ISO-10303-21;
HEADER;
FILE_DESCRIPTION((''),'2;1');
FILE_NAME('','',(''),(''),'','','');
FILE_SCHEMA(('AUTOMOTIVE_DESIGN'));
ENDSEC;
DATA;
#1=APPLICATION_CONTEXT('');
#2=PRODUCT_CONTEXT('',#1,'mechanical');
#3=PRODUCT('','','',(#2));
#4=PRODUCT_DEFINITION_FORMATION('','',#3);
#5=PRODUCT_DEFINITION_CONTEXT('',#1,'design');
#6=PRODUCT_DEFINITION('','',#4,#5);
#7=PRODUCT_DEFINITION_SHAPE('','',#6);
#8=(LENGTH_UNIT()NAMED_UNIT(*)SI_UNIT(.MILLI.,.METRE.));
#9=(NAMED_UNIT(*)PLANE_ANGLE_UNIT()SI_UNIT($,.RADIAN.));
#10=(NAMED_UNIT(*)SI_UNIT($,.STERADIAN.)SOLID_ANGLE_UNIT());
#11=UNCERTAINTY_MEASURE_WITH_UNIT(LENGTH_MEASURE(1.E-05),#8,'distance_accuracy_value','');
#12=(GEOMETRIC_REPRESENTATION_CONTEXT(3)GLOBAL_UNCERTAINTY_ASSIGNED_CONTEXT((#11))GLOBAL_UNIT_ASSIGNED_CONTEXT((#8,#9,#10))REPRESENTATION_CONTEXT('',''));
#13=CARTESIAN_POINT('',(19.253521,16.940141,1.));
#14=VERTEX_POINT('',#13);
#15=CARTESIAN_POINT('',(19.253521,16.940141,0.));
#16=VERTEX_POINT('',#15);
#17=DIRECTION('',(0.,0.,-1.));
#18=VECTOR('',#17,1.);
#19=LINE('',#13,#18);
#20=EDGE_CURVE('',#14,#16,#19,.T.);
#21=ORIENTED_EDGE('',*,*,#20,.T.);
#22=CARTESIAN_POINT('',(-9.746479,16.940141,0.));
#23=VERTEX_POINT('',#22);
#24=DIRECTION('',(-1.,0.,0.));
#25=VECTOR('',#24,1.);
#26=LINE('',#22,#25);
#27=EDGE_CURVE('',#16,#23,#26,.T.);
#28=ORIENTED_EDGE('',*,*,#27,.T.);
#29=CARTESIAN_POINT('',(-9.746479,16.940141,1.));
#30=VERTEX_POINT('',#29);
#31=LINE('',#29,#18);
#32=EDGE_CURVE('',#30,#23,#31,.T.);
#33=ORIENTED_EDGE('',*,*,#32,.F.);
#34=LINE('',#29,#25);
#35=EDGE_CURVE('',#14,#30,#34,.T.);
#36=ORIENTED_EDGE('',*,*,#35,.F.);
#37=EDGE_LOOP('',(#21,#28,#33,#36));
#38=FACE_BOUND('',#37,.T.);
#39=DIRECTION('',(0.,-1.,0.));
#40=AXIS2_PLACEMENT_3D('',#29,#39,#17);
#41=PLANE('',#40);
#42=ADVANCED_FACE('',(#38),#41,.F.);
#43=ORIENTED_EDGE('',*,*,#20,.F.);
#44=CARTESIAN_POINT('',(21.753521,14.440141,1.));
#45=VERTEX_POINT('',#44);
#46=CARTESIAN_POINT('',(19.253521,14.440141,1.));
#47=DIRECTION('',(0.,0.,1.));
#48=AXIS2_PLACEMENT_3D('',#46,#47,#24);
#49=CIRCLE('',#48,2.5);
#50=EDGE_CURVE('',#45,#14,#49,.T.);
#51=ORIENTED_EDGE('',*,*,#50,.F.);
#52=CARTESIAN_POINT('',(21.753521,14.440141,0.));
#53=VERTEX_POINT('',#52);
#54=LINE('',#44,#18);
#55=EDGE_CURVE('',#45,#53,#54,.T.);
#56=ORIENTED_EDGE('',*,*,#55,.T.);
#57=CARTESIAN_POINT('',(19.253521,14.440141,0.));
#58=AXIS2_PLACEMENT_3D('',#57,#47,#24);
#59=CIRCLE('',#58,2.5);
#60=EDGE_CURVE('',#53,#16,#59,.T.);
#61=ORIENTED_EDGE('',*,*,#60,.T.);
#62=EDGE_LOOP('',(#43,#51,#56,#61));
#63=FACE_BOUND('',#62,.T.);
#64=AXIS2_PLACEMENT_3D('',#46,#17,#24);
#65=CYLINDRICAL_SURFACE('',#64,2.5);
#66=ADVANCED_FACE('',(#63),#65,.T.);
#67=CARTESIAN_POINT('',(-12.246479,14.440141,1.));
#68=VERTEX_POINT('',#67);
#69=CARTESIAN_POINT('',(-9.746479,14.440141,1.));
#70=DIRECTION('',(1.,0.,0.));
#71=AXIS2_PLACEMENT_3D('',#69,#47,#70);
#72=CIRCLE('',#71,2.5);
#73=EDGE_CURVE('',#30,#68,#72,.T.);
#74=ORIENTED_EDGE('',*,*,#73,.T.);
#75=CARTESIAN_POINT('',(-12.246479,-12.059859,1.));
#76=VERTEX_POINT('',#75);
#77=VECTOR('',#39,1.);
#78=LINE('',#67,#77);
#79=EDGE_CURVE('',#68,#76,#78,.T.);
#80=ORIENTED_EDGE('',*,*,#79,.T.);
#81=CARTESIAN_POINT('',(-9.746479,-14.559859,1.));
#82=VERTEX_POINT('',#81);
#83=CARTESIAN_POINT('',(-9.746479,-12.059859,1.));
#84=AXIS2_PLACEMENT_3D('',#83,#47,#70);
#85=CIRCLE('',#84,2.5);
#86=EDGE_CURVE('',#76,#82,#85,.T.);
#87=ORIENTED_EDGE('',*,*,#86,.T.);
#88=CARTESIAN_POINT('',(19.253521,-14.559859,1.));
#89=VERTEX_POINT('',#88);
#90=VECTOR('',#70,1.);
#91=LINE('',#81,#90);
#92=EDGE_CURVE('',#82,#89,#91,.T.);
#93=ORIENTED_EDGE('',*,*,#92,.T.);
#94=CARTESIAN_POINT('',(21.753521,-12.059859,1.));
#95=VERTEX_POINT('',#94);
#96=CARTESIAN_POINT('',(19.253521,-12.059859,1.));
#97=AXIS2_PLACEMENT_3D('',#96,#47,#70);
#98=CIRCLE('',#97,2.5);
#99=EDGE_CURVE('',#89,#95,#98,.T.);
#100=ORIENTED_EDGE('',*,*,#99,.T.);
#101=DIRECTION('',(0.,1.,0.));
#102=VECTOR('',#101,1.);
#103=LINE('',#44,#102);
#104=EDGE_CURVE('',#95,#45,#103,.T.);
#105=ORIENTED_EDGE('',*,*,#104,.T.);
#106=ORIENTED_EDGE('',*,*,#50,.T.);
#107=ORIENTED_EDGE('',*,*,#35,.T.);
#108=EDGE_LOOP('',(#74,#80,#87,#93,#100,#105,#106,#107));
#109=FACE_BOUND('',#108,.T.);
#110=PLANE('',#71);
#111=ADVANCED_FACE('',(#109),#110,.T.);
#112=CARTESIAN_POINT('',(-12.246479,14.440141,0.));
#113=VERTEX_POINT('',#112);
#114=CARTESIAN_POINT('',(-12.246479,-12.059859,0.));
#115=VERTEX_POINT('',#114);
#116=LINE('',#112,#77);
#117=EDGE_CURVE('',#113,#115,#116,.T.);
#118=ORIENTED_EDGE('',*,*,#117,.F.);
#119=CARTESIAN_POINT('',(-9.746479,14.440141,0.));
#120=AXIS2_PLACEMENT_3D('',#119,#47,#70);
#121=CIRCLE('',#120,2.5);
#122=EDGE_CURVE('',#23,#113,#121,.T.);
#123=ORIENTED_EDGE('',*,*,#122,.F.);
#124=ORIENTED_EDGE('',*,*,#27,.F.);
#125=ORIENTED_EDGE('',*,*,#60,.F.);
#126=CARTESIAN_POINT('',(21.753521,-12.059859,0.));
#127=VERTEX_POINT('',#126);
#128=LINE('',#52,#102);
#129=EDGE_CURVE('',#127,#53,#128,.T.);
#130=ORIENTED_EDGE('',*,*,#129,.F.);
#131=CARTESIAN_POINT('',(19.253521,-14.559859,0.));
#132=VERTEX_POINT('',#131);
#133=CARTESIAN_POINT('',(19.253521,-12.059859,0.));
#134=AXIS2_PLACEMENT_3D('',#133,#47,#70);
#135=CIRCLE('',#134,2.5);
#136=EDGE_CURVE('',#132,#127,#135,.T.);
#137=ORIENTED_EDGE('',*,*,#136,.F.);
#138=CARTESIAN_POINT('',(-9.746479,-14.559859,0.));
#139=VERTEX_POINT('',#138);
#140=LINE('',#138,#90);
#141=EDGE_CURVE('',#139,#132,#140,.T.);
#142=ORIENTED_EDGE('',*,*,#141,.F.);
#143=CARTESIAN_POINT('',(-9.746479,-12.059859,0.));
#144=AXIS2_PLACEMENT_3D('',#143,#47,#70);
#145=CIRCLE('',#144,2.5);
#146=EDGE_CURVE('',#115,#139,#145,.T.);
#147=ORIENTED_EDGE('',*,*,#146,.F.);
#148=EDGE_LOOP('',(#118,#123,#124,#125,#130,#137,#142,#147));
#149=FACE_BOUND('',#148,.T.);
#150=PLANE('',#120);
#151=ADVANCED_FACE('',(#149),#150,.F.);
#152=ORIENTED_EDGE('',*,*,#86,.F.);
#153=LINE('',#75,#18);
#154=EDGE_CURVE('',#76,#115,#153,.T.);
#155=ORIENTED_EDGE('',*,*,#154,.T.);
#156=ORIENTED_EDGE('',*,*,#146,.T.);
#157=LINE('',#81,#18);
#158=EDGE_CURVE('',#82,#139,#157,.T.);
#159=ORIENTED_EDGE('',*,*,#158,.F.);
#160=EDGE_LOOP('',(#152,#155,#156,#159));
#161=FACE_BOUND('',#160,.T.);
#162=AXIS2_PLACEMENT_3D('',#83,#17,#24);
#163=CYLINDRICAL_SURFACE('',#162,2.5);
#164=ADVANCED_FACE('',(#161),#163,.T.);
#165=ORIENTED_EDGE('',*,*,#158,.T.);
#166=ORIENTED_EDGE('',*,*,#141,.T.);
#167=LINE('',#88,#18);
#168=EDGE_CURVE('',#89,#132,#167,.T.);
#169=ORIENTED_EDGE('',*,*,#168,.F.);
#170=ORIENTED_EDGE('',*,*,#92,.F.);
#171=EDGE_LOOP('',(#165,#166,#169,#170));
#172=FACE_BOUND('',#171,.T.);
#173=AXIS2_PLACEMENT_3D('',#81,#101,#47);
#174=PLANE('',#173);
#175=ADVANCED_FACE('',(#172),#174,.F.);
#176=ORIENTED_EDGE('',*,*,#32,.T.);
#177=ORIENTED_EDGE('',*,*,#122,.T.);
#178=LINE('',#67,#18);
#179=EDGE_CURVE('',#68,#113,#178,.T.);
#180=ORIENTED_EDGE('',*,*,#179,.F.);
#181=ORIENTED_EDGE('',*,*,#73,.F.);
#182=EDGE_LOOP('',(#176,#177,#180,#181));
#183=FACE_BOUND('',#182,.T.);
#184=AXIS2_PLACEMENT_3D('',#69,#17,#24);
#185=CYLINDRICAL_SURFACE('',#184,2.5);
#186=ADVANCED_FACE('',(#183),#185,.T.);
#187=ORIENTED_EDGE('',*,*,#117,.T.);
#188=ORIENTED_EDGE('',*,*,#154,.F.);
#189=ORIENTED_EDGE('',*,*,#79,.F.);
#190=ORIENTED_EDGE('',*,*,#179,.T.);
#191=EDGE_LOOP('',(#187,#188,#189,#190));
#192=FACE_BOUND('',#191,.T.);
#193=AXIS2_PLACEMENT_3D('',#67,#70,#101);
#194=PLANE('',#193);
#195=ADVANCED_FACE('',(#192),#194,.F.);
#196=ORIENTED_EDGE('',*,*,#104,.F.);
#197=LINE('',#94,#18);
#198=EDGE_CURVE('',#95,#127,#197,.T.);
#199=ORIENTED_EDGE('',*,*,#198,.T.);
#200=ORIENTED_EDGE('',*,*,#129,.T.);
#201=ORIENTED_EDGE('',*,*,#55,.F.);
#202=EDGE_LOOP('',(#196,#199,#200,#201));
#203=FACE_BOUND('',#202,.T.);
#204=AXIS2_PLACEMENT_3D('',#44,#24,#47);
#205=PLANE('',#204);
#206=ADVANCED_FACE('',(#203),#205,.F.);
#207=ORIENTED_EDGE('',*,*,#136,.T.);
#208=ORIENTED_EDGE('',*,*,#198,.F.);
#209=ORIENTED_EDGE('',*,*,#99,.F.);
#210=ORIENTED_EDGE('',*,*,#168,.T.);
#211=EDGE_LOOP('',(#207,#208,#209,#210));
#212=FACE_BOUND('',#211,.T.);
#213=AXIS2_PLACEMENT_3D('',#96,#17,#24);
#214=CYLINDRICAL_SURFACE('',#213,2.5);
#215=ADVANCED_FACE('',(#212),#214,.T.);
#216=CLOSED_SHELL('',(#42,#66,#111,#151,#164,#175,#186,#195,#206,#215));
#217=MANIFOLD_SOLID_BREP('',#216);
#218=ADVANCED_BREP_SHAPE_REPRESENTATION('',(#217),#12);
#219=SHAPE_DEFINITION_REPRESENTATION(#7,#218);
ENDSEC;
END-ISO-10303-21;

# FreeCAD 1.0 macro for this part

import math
import FreeCAD as App
import Part
import Sketcher

doc = App.newDocument("Part")
params = doc.addObject("Spreadsheet::Sheet", "Params")
for row, (alias, value) in enumerate([
    ("sketch1_radius", "2.5 mm"),
    ("sketch1_width", "29 mm"),
    ("sketch1_height", "26.5 mm"),
    ("pad1_length", "1 mm"),
], start=1):
    params.set(f"A{row}", alias)
    params.set(f"B{row}", "=" + value)
    params.setAlias(f"B{row}", alias)

body = doc.addObject("PartDesign::Body", "Body")

# Sketch on XY plane
sketch1 = body.newObject("Sketcher::SketchObject", "Sketch")
sketch1.AttachmentSupport = (doc.getObject("XY_Plane"), [""])
sketch1.MapMode = "FlatFace"
sketch1.addGeometry(Part.LineSegment(App.Vector(19.253521, 16.940141, 0), App.Vector(-9.746479, 16.940141, 0)), False)
sketch1.addGeometry(Part.ArcOfCircle(Part.Circle(App.Vector(-9.746479, 14.440141, 0), App.Vector(0, 0, 1), 2.5), math.radians(90), math.radians(180)), False)
sketch1.addGeometry(Part.LineSegment(App.Vector(-12.246479, 14.440141, 0), App.Vector(-12.246479, -12.059859, 0)), False)
sketch1.addGeometry(Part.ArcOfCircle(Part.Circle(App.Vector(-9.746479, -12.059859, 0), App.Vector(0, 0, 1), 2.5), math.radians(180), math.radians(270)), False)
sketch1.addGeometry(Part.LineSegment(App.Vector(-9.746479, -14.559859, 0), App.Vector(19.253521, -14.559859, 0)), False)
sketch1.addGeometry(Part.ArcOfCircle(Part.Circle(App.Vector(19.253521, -12.059859, 0), App.Vector(0, 0, 1), 2.5), math.radians(-90), math.radians(0)), False)
sketch1.addGeometry(Part.LineSegment(App.Vector(21.753521, -12.059859, 0), App.Vector(21.753521, 14.440141, 0)), False)
sketch1.addGeometry(Part.ArcOfCircle(Part.Circle(App.Vector(19.253521, 14.440141, 0), App.Vector(0, 0, 1), 2.5), math.radians(0), math.radians(90)), False)
sketch1.addConstraint(Sketcher.Constraint("Tangent", 0, 2, 1, 1))
sketch1.addConstraint(Sketcher.Constraint("Tangent", 1, 2, 2, 1))
sketch1.addConstraint(Sketcher.Constraint("Tangent", 2, 2, 3, 1))
sketch1.addConstraint(Sketcher.Constraint("Tangent", 3, 2, 4, 1))
sketch1.addConstraint(Sketcher.Constraint("Tangent", 4, 2, 5, 1))
sketch1.addConstraint(Sketcher.Constraint("Tangent", 5, 2, 6, 1))
sketch1.addConstraint(Sketcher.Constraint("Tangent", 6, 2, 7, 1))
sketch1.addConstraint(Sketcher.Constraint("Tangent", 7, 2, 0, 1))
sketch1.addConstraint(Sketcher.Constraint("Horizontal", 0))
sketch1.addConstraint(Sketcher.Constraint("Vertical", 2))
sketch1.addConstraint(Sketcher.Constraint("Horizontal", 4))
sketch1.addConstraint(Sketcher.Constraint("Vertical", 6))
sketch1.addConstraint(Sketcher.Constraint("Equal", 1, 3))
sketch1.addConstraint(Sketcher.Constraint("Equal", 3, 5))
sketch1.addConstraint(Sketcher.Constraint("Equal", 5, 7))
sketch1.addConstraint(Sketcher.Constraint("Radius", 1, 2.5))
sketch1.addConstraint(Sketcher.Constraint("DistanceX", 0, 2, 0, 1, 29.0))
sketch1.addConstraint(Sketcher.Constraint("DistanceY", 2, 2, 2, 1, 26.5))
sketch1.addConstraint(Sketcher.Constraint("DistanceX", 1, 3, -1, 1, 9.746479))
sketch1.addConstraint(Sketcher.Constraint("DistanceY", -1, 1, 1, 3, 14.440141))
sketch1.setExpression("Constraints[15]", "Params.sketch1_radius")
sketch1.setExpression("Constraints[16]", "Params.sketch1_width")
sketch1.setExpression("Constraints[17]", "Params.sketch1_height")
pad1 = body.newObject("PartDesign::Pad", "Pad")
pad1.Profile = sketch1
pad1.setExpression("Length", "Params.pad1_length")

doc.recompute()
